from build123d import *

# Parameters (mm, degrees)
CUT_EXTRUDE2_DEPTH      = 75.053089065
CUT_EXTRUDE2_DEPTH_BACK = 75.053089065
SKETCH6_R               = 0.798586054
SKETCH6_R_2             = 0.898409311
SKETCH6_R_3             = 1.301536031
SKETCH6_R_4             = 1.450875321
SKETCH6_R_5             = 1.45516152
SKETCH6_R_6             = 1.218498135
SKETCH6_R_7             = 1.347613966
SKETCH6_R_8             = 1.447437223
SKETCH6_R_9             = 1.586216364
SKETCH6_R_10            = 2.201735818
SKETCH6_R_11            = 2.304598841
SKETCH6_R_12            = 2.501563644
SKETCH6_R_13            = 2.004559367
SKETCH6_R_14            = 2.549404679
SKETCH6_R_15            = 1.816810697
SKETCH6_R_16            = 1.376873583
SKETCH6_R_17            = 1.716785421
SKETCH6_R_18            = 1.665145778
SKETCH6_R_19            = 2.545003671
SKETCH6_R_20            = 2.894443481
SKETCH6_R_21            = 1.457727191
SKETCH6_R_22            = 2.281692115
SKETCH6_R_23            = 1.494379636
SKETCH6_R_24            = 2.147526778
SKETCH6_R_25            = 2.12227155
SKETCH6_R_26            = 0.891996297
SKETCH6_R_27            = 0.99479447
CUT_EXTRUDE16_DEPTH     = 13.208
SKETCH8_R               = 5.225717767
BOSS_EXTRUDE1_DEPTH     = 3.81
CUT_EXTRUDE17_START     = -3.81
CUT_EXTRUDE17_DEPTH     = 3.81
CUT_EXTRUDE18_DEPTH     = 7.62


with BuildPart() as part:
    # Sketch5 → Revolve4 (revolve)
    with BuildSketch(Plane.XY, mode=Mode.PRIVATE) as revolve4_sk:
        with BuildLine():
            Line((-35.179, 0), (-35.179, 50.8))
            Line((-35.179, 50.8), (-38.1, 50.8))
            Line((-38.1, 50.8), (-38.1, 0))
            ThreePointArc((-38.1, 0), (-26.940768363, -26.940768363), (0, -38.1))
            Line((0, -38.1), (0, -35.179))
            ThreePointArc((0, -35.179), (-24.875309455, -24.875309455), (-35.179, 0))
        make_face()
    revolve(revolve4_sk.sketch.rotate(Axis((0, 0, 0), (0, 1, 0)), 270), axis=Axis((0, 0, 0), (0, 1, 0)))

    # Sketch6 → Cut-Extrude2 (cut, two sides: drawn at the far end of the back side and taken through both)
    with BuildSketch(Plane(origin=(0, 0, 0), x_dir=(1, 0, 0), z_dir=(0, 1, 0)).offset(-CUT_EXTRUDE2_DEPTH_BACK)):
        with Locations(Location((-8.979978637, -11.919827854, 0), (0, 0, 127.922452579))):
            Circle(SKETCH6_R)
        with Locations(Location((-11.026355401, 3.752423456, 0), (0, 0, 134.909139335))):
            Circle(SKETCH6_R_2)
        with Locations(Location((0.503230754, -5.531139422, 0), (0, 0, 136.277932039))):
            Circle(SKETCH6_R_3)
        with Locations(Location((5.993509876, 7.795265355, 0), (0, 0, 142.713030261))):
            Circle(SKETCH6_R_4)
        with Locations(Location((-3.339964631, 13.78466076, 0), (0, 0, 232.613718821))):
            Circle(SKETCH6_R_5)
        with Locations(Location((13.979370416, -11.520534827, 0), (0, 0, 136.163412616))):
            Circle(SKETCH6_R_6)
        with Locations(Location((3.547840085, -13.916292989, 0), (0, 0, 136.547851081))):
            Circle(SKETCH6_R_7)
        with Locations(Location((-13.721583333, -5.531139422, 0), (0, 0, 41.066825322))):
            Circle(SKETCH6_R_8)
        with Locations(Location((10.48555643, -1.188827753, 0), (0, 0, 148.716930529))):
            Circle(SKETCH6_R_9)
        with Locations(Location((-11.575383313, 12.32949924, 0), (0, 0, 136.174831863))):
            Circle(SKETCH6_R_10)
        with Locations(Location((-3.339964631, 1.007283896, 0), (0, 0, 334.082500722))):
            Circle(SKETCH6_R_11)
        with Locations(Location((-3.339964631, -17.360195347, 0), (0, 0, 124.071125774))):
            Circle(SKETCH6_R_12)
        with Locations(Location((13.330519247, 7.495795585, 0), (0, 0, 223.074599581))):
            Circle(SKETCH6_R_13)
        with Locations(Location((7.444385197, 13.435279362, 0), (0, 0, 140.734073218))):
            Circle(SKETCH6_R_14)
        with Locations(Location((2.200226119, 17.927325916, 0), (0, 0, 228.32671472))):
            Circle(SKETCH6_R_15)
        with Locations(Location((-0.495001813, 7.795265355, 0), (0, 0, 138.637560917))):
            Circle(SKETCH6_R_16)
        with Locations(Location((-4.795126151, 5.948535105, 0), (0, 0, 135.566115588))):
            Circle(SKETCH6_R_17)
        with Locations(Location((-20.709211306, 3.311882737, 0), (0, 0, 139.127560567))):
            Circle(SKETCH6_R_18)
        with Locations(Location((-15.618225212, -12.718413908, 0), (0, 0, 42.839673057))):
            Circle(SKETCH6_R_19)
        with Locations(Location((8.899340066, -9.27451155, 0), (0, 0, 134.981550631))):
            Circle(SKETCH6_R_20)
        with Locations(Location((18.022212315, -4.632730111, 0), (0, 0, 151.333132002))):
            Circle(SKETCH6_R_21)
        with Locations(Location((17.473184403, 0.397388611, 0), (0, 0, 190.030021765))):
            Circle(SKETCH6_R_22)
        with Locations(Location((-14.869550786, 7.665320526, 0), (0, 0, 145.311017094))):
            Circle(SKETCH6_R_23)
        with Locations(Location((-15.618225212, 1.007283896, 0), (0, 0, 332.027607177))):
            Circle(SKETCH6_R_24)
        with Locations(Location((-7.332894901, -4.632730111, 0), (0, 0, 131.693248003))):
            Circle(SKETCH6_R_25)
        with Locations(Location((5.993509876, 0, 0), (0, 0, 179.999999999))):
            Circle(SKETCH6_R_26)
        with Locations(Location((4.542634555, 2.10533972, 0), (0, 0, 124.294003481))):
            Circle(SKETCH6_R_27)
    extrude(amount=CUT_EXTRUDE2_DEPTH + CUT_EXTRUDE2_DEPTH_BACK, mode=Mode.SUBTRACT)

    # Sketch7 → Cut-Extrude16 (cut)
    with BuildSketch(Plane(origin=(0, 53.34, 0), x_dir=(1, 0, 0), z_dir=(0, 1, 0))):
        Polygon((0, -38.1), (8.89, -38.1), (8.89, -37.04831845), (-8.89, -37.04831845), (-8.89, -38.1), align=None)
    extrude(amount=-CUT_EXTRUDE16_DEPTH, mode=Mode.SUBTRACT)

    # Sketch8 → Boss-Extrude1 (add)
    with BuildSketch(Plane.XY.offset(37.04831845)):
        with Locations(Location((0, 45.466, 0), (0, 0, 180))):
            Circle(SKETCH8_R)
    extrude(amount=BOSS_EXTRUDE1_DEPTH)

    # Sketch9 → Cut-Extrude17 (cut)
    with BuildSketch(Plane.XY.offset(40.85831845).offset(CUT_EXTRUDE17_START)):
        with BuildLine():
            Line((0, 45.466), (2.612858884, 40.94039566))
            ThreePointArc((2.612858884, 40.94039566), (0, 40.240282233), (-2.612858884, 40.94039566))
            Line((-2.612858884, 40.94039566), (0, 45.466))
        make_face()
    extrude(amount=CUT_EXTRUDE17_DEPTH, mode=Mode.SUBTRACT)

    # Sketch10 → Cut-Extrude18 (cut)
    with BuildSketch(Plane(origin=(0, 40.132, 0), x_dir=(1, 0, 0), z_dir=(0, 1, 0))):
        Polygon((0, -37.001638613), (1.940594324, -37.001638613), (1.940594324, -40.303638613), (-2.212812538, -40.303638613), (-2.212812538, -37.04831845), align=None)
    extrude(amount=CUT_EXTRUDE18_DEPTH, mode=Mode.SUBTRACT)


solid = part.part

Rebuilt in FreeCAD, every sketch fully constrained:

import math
import FreeCAD as App
import Part
import Sketcher

V = App.Vector
Q = App.Units.Quantity

doc = App.newDocument("Part")
body = doc.addObject("PartDesign::Body", "Body")

sketch1 = doc.addObject("Sketcher::SketchObject", "Sketch")
body.addObject(sketch1)
sketch1.AttachmentSupport = (doc.XY_Plane, [""])
sketch1.MapMode = "FlatFace"
sketch1.addGeometry([
    Part.LineSegment(V(-35.179, 0, 0), V(-35.179, 50.8, 0)),
    Part.LineSegment(V(-35.179, 50.8, 0), V(-38.1, 50.8, 0)),
    Part.LineSegment(V(-38.1, 50.8, 0), V(-38.1, 0, 0)),
    Part.ArcOfCircle(Part.Circle(V(0, 0, 0), V(0, 0, 1), 38.1), math.radians(-180), math.radians(-90)),
    Part.LineSegment(V(0, -38.1, 0), V(0, -35.179, 0)),
    Part.ArcOfCircle(Part.Circle(V(0, 0, 0), V(0, 0, 1), 35.179), math.radians(-180), math.radians(-90)),
], False)
sketch1.addConstraint([
    Sketcher.Constraint("Coincident", 0, 2, 1, 1),
    Sketcher.Constraint("Coincident", 1, 2, 2, 1),
    Sketcher.Constraint("Tangent", 2, 2, 3, 1),
    Sketcher.Constraint("Coincident", 3, 2, 4, 1),
    Sketcher.Constraint("Coincident", 4, 2, 5, 2),
    Sketcher.Constraint("Tangent", 5, 1, 0, 1),
    Sketcher.Constraint("Vertical", 0),
    Sketcher.Constraint("Horizontal", 1),
    Sketcher.Constraint("Vertical", 2),
    Sketcher.Constraint("Vertical", 4),
    Sketcher.Constraint("Coincident", 3, 3, -1, 1),
    Sketcher.Constraint("Coincident", 5, 3, -1, 1),
    Sketcher.Constraint("PointOnObject", 3, 2, -2),
    Sketcher.Constraint("Radius", 3, Q("1.5 in")),
    Sketcher.Constraint("DistanceY", 0, 1, 0, 2, Q("2 in")),
    Sketcher.Constraint("Radius", 5, Q("1.385 in")),
])
revolution = doc.addObject("PartDesign::Revolution", "Revolution")
body.addObject(revolution)
revolution.Profile = sketch1
revolution.ReferenceAxis = (sketch1, ["V_Axis"])
revolution.Angle = 360

sketch2 = doc.addObject("Sketcher::SketchObject", "Sketch001")
body.addObject(sketch2)
sketch2.AttachmentSupport = (doc.XZ_Plane, [""])
sketch2.MapMode = "FlatFace"
sketch2.addGeometry([
    Part.Circle(V(-8.979979, 11.919828, 0), V(0, 0, 1), 0.798586),
    Part.Circle(V(-11.026355, -3.752423, 0), V(0, 0, 1), 0.898409),
    Part.Circle(V(0.503231, 5.531139, 0), V(0, 0, 1), 1.301536),
    Part.Circle(V(5.99351, -7.795265, 0), V(0, 0, 1), 1.450875),
    Part.Circle(V(-3.339965, -13.784661, 0), V(0, 0, 1), 1.455162),
    Part.Circle(V(13.97937, 11.520535, 0), V(0, 0, 1), 1.218498),
    Part.Circle(V(3.54784, 13.916293, 0), V(0, 0, 1), 1.347614),
    Part.Circle(V(-13.721583, 5.531139, 0), V(0, 0, 1), 1.447437),
    Part.Circle(V(10.485556, 1.188828, 0), V(0, 0, 1), 1.586216),
    Part.Circle(V(-11.575383, -12.329499, 0), V(0, 0, 1), 2.201736),
    Part.Circle(V(-3.339965, -1.007284, 0), V(0, 0, 1), 2.304599),
    Part.Circle(V(-3.339965, 17.360195, 0), V(0, 0, 1), 2.501564),
    Part.Circle(V(13.330519, -7.495796, 0), V(0, 0, 1), 2.004559),
    Part.Circle(V(7.444385, -13.435279, 0), V(0, 0, 1), 2.549405),
    Part.Circle(V(2.200226, -17.927326, 0), V(0, 0, 1), 1.816811),
    Part.Circle(V(-0.495002, -7.795265, 0), V(0, 0, 1), 1.376874),
    Part.Circle(V(-4.795126, -5.948535, 0), V(0, 0, 1), 1.716785),
    Part.Circle(V(-20.709211, -3.311883, 0), V(0, 0, 1), 1.665146),
    Part.Circle(V(-15.618225, 12.718414, 0), V(0, 0, 1), 2.545004),
    Part.Circle(V(8.89934, 9.274512, 0), V(0, 0, 1), 2.894443),
    Part.Circle(V(18.022212, 4.63273, 0), V(0, 0, 1), 1.457727),
    Part.Circle(V(17.473184, -0.397389, 0), V(0, 0, 1), 2.281692),
    Part.Circle(V(-14.869551, -7.665321, 0), V(0, 0, 1), 1.49438),
    Part.Circle(V(-15.618225, -1.007284, 0), V(0, 0, 1), 2.147527),
    Part.Circle(V(-7.332895, 4.63273, 0), V(0, 0, 1), 2.122272),
    Part.Circle(V(5.99351, 0, 0), V(0, 0, 1), 0.891996),
    Part.Circle(V(4.542635, -2.10534, 0), V(0, 0, 1), 0.994794),
], False)
sketch2.addConstraint([
    Sketcher.Constraint("PointOnObject", 25, 3, -1),
    Sketcher.Constraint("Horizontal", 2, 3, 7, 3),
    Sketcher.Constraint("Horizontal", 3, 3, 15, 3),
    Sketcher.Constraint("Horizontal", 10, 3, 23, 3),
    Sketcher.Constraint("Horizontal", 20, 3, 24, 3),
    Sketcher.Constraint("Vertical", 4, 3, 10, 3),
    Sketcher.Constraint("Vertical", 10, 3, 11, 3),
    Sketcher.Constraint("Vertical", 18, 3, 23, 3),
    Sketcher.Constraint("Vertical", 3, 3, 25, 3),
    Sketcher.Constraint("Diameter", 1, Q("1.796819 mm")),
    Sketcher.Constraint("Diameter", 3, Q("2.901751 mm")),
    Sketcher.Constraint("Diameter", 9, Q("4.403472 mm")),
    Sketcher.Constraint("Diameter", 12, Q("4.009119 mm")),
    Sketcher.Constraint("Diameter", 13, Q("5.098809 mm")),
    Sketcher.Constraint("Diameter", 14, Q("3.633621 mm")),
    Sketcher.Constraint("Diameter", 16, Q("3.433571 mm")),
    Sketcher.Constraint("Diameter", 17, Q("3.330292 mm")),
    Sketcher.Constraint("Diameter", 22, Q("2.988759 mm")),
    Sketcher.Constraint("Diameter", 26, Q("1.989589 mm")),
    Sketcher.Constraint("Diameter", 0, Q("1.597172 mm")),
    Sketcher.Constraint("Diameter", 2, Q("2.603072 mm")),
    Sketcher.Constraint("Diameter", 4, Q("2.910323 mm")),
    Sketcher.Constraint("Diameter", 5, Q("2.436996 mm")),
    Sketcher.Constraint("Diameter", 6, Q("2.695228 mm")),
    Sketcher.Constraint("Diameter", 7, Q("2.894874 mm")),
    Sketcher.Constraint("Diameter", 8, Q("3.172433 mm")),
    Sketcher.Constraint("Diameter", 10, Q("4.609198 mm")),
    Sketcher.Constraint("Diameter", 11, Q("5.003127 mm")),
    Sketcher.Constraint("Diameter", 15, Q("2.753747 mm")),
    Sketcher.Constraint("Diameter", 18, Q("5.090007 mm")),
    Sketcher.Constraint("Diameter", 19, Q("5.788887 mm")),
    Sketcher.Constraint("Diameter", 20, Q("2.915454 mm")),
    Sketcher.Constraint("Diameter", 21, Q("4.563384 mm")),
    Sketcher.Constraint("Diameter", 23, Q("4.295054 mm")),
    Sketcher.Constraint("Diameter", 24, Q("4.244543 mm")),
    Sketcher.Constraint("Diameter", 25, Q("1.783993 mm")),
    Sketcher.Constraint("DistanceY", 14, 3, 3, 3, Q("0.3989 in")),
    Sketcher.Constraint("DistanceY", 9, 3, -1, 1, Q("12.329499 mm")),
    Sketcher.Constraint("DistanceX", 15, 3, -1, 1, Q("0.495002 mm")),
    Sketcher.Constraint("DistanceY", 4, 3, 2, 3, Q("19.3158 mm")),
    Sketcher.Constraint("DistanceY", 3, 3, 5, 3, Q("19.3158 mm")),
    Sketcher.Constraint("DistanceX", 7, 3, 9, 3, Q("2.1462 mm")),
    Sketcher.Constraint("DistanceY", 17, 3, 10, 3, Q("2.304599 mm")),
    Sketcher.Constraint("DistanceX", 6, 3, 19, 3, Q("5.3515 mm")),
    Sketcher.Constraint("DistanceY", 21, 3, 19, 3, Q("9.6719 mm")),
    Sketcher.Constraint("DistanceX", 23, 3, 16, 3, Q("10.823099 mm")),
    Sketcher.Constraint("DistanceX", 10, 3, 26, 3, Q("7.882599 mm")),
    Sketcher.Constraint("DistanceX", 0, 3, -1, 1, Q("8.979979 mm")),
    Sketcher.Constraint("DistanceX", -1, 1, 2, 3, Q("0.503231 mm")),
    Sketcher.Constraint("DistanceY", -1, 1, 2, 3, Q("5.531139 mm")),
    Sketcher.Constraint("DistanceX", -1, 1, 3, 3, Q("5.99351 mm")),
    Sketcher.Constraint("DistanceX", -1, 1, 5, 3, Q("13.97937 mm")),
    Sketcher.Constraint("DistanceX", -1, 1, 6, 3, Q("3.54784 mm")),
    Sketcher.Constraint("DistanceX", -1, 1, 12, 3, Q("13.330519 mm")),
    Sketcher.Constraint("DistanceY", 13, 3, -1, 1, Q("13.435279 mm")),
    Sketcher.Constraint("DistanceX", 17, 3, -1, 1, Q("20.709211 mm")),
    Sketcher.Constraint("DistanceY", -1, 1, 19, 3, Q("9.274512 mm")),
    Sketcher.Constraint("DistanceY", -1, 1, 20, 3, Q("4.63273 mm")),
    Sketcher.Constraint("DistanceX", 22, 3, -1, 1, Q("14.869551 mm")),
    Sketcher.Constraint("DistanceY", 22, 3, -1, 1, Q("7.665321 mm")),
    Sketcher.Constraint("DistanceY", 26, 3, -1, 1, Q("2.10534 mm")),
    Sketcher.Constraint("DistanceY", 1, 3, 0, 3, Q("15.672251 mm")),
    Sketcher.Constraint("DistanceY", 2, 3, 0, 3, Q("6.388688 mm")),
    Sketcher.Constraint("DistanceY", 3, 3, 1, 3, Q("4.042842 mm")),
    Sketcher.Constraint("DistanceX", 1, 3, 4, 3, Q("7.686391 mm")),
    Sketcher.Constraint("DistanceY", 5, 3, 6, 3, Q("2.395758 mm")),
    Sketcher.Constraint("DistanceX", 7, 3, 4, 3, Q("10.381619 mm")),
    Sketcher.Constraint("DistanceY", 8, 3, 2, 3, Q("4.342312 mm")),
    Sketcher.Constraint("DistanceX", 4, 3, 8, 3, Q("13.825521 mm")),
    Sketcher.Constraint("DistanceY", 1, 3, 10, 3, Q("2.74514 mm")),
    Sketcher.Constraint("DistanceY", 5, 3, 11, 3, Q("5.839661 mm")),
    Sketcher.Constraint("DistanceY", 3, 3, 12, 3, Q("0.29947 mm")),
    Sketcher.Constraint("DistanceX", 4, 3, 13, 3, Q("10.78435 mm")),
    Sketcher.Constraint("DistanceX", 14, 3, 13, 3, Q("5.244159 mm")),
    Sketcher.Constraint("DistanceY", 15, 3, 16, 3, Q("1.84673 mm")),
    Sketcher.Constraint("DistanceX", 16, 3, 10, 3, Q("1.455162 mm")),
    Sketcher.Constraint("DistanceY", 18, 3, 11, 3, Q("4.641781 mm")),
    Sketcher.Constraint("DistanceX", 5, 3, 20, 3, Q("4.042842 mm")),
    Sketcher.Constraint("DistanceX", 7, 3, 24, 3, Q("6.388688 mm")),
    Sketcher.Constraint("DistanceX", 1, 3, -1, 1, Q("11.026355 mm")),
    Sketcher.Constraint("DistanceX", -1, 1, 21, 3, Q("17.473184 mm")),
])
pocket1 = doc.addObject("PartDesign::Pocket", "Pocket")
body.addObject(pocket1)
pocket1.Profile = sketch2
pocket1.Type = "ThroughAll"
pocket1.Midplane = True

sketch3 = doc.addObject("Sketcher::SketchObject", "Sketch002")
body.addObject(sketch3)
sketch3.AttachmentSupport = (doc.XZ_Plane, [""])
sketch3.MapMode = "FlatFace"
sketch3.AttachmentOffset = App.Placement(V(0, 0, -2.1 * 25.4), App.Rotation())
sketch3.addGeometry([
    Part.LineSegment(V(8.89, 38.1, 0), V(8.89, 37.048318, 0)),
    Part.LineSegment(V(8.89, 37.048318, 0), V(-8.89, 37.048318, 0)),
    Part.LineSegment(V(-8.89, 37.048318, 0), V(-8.89, 38.1, 0)),
    Part.LineSegment(V(-8.89, 38.1, 0), V(8.89, 38.1, 0)),
], False)
sketch3.addConstraint([
    Sketcher.Constraint("Coincident", 0, 2, 1, 1),
    Sketcher.Constraint("Coincident", 1, 2, 2, 1),
    Sketcher.Constraint("Coincident", 2, 2, 3, 1),
    Sketcher.Constraint("Coincident", 3, 2, 0, 1),
    Sketcher.Constraint("Vertical", 0),
    Sketcher.Constraint("Horizontal", 1),
    Sketcher.Constraint("Vertical", 2),
    Sketcher.Constraint("Horizontal", 3),
    Sketcher.Constraint("DistanceX", 1, 2, 1, 1, Q("0.7 in")),
    Sketcher.Constraint("DistanceY", -1, 1, 2, 2, Q("1.5 in")),
    Sketcher.Constraint("DistanceX", -1, 1, 0, 2, Q("0.35 in")),
    Sketcher.Constraint("DistanceY", 0, 2, 0, 1, Q("1.051682 mm")),
])
pocket2 = doc.addObject("PartDesign::Pocket", "Pocket001")
body.addObject(pocket2)
pocket2.Profile = sketch3
pocket2.Length = Q("0.52 in")
pocket2.Reversed = True

sketch4 = doc.addObject("Sketcher::SketchObject", "Sketch003")
body.addObject(sketch4)
sketch4.AttachmentSupport = (doc.XY_Plane, [""])
sketch4.MapMode = "FlatFace"
sketch4.AttachmentOffset = App.Placement(V(0, 0, 37.048318), App.Rotation())
sketch4.addGeometry(Part.Circle(V(0, 45.466, 0), V(0, 0, 1), 5.225718), False)
sketch4.addConstraint([
    Sketcher.Constraint("PointOnObject", 0, 3, -2),
    Sketcher.Constraint("DistanceY", -1, 1, 0, 3, Q("1.79 in")),
    Sketcher.Constraint("Diameter", 0, Q("10.451436 mm")),
])
pad1 = doc.addObject("PartDesign::Pad", "Pad")
body.addObject(pad1)
pad1.Profile = sketch4
pad1.Length = Q("0.15 in")

sketch5 = doc.addObject("Sketcher::SketchObject", "Sketch004")
body.addObject(sketch5)
sketch5.AttachmentSupport = (doc.XY_Plane, [""])
sketch5.MapMode = "FlatFace"
sketch5.AttachmentOffset = App.Placement(V(0, 0, 37.048318), App.Rotation())
sketch5.addGeometry([
    Part.LineSegment(V(2.612859, 40.940396, 0), V(0, 45.466, 0)),
    Part.LineSegment(V(0, 45.466, 0), V(-2.612859, 40.940396, 0)),
    Part.ArcOfCircle(Part.Circle(V(0, 45.466, 0), V(0, 0, 1), 5.225718), math.radians(-120), math.radians(-60)),
], False)
sketch5.addConstraint([
    Sketcher.Constraint("Coincident", 0, 2, 1, 1),
    Sketcher.Constraint("Coincident", 1, 2, 2, 1),
    Sketcher.Constraint("Coincident", 2, 2, 0, 1),
    Sketcher.Constraint("Coincident", 0, 2, 2, 3),
    Sketcher.Constraint("Symmetric", 1, 2, 2, 2, -2),
    Sketcher.Constraint("Angle", 0, Q("120 deg")),
    Sketcher.Constraint("DistanceY", -1, 1, 2, 3, Q("1.79 in")),
    Sketcher.Constraint("Radius", 2, Q("5.225718 mm")),
])
pocket3 = doc.addObject("PartDesign::Pocket", "Pocket002")
body.addObject(pocket3)
pocket3.Profile = sketch5
pocket3.Length = Q("0.15 in")
pocket3.Reversed = True

sketch6 = doc.addObject("Sketcher::SketchObject", "Sketch005")
body.addObject(sketch6)
sketch6.AttachmentSupport = (doc.XZ_Plane, [""])
sketch6.MapMode = "FlatFace"
sketch6.AttachmentOffset = App.Placement(V(0, 0, -1.58 * 25.4), App.Rotation())
sketch6.addGeometry([
    Part.LineSegment(V(1.940594, 37.001639, 0), V(0, 37.001639, 0)),
    Part.LineSegment(V(0, 37.001639, 0), V(-2.212813, 37.048318, 0)),
    Part.LineSegment(V(-2.212813, 37.048318, 0), V(-2.212813, 40.303639, 0)),
    Part.LineSegment(V(-2.212813, 40.303639, 0), V(1.940594, 40.303639, 0)),
    Part.LineSegment(V(1.940594, 40.303639, 0), V(1.940594, 37.001639, 0)),
], False)
sketch6.addConstraint([
    Sketcher.Constraint("Coincident", 0, 2, 1, 1),
    Sketcher.Constraint("Coincident", 1, 2, 2, 1),
    Sketcher.Constraint("Coincident", 2, 2, 3, 1),
    Sketcher.Constraint("Coincident", 3, 2, 4, 1),
    Sketcher.Constraint("Coincident", 4, 2, 0, 1),
    Sketcher.Constraint("Horizontal", 0),
    Sketcher.Constraint("Vertical", 2),
    Sketcher.Constraint("Horizontal", 3),
    Sketcher.Constraint("Vertical", 4),
    Sketcher.Constraint("PointOnObject", 0, 2, -2),
    Sketcher.Constraint("DistanceY", 4, 2, 4, 1, Q("0.13 in")),
    Sketcher.Constraint("DistanceY", 2, 1, 2, 2, Q("3.25532 mm")),
    Sketcher.Constraint("DistanceX", 0, 2, 0, 1, Q("1.940594 mm")),
    Sketcher.Constraint("DistanceX", 3, 1, 3, 2, Q("4.153407 mm")),
    Sketcher.Constraint("DistanceY", -1, 1, 0, 2, Q("37.001639 mm")),
])
pocket4 = doc.addObject("PartDesign::Pocket", "Pocket003")
body.addObject(pocket4)
pocket4.Profile = sketch6
pocket4.Length = Q("0.3 in")

doc.recompute()
